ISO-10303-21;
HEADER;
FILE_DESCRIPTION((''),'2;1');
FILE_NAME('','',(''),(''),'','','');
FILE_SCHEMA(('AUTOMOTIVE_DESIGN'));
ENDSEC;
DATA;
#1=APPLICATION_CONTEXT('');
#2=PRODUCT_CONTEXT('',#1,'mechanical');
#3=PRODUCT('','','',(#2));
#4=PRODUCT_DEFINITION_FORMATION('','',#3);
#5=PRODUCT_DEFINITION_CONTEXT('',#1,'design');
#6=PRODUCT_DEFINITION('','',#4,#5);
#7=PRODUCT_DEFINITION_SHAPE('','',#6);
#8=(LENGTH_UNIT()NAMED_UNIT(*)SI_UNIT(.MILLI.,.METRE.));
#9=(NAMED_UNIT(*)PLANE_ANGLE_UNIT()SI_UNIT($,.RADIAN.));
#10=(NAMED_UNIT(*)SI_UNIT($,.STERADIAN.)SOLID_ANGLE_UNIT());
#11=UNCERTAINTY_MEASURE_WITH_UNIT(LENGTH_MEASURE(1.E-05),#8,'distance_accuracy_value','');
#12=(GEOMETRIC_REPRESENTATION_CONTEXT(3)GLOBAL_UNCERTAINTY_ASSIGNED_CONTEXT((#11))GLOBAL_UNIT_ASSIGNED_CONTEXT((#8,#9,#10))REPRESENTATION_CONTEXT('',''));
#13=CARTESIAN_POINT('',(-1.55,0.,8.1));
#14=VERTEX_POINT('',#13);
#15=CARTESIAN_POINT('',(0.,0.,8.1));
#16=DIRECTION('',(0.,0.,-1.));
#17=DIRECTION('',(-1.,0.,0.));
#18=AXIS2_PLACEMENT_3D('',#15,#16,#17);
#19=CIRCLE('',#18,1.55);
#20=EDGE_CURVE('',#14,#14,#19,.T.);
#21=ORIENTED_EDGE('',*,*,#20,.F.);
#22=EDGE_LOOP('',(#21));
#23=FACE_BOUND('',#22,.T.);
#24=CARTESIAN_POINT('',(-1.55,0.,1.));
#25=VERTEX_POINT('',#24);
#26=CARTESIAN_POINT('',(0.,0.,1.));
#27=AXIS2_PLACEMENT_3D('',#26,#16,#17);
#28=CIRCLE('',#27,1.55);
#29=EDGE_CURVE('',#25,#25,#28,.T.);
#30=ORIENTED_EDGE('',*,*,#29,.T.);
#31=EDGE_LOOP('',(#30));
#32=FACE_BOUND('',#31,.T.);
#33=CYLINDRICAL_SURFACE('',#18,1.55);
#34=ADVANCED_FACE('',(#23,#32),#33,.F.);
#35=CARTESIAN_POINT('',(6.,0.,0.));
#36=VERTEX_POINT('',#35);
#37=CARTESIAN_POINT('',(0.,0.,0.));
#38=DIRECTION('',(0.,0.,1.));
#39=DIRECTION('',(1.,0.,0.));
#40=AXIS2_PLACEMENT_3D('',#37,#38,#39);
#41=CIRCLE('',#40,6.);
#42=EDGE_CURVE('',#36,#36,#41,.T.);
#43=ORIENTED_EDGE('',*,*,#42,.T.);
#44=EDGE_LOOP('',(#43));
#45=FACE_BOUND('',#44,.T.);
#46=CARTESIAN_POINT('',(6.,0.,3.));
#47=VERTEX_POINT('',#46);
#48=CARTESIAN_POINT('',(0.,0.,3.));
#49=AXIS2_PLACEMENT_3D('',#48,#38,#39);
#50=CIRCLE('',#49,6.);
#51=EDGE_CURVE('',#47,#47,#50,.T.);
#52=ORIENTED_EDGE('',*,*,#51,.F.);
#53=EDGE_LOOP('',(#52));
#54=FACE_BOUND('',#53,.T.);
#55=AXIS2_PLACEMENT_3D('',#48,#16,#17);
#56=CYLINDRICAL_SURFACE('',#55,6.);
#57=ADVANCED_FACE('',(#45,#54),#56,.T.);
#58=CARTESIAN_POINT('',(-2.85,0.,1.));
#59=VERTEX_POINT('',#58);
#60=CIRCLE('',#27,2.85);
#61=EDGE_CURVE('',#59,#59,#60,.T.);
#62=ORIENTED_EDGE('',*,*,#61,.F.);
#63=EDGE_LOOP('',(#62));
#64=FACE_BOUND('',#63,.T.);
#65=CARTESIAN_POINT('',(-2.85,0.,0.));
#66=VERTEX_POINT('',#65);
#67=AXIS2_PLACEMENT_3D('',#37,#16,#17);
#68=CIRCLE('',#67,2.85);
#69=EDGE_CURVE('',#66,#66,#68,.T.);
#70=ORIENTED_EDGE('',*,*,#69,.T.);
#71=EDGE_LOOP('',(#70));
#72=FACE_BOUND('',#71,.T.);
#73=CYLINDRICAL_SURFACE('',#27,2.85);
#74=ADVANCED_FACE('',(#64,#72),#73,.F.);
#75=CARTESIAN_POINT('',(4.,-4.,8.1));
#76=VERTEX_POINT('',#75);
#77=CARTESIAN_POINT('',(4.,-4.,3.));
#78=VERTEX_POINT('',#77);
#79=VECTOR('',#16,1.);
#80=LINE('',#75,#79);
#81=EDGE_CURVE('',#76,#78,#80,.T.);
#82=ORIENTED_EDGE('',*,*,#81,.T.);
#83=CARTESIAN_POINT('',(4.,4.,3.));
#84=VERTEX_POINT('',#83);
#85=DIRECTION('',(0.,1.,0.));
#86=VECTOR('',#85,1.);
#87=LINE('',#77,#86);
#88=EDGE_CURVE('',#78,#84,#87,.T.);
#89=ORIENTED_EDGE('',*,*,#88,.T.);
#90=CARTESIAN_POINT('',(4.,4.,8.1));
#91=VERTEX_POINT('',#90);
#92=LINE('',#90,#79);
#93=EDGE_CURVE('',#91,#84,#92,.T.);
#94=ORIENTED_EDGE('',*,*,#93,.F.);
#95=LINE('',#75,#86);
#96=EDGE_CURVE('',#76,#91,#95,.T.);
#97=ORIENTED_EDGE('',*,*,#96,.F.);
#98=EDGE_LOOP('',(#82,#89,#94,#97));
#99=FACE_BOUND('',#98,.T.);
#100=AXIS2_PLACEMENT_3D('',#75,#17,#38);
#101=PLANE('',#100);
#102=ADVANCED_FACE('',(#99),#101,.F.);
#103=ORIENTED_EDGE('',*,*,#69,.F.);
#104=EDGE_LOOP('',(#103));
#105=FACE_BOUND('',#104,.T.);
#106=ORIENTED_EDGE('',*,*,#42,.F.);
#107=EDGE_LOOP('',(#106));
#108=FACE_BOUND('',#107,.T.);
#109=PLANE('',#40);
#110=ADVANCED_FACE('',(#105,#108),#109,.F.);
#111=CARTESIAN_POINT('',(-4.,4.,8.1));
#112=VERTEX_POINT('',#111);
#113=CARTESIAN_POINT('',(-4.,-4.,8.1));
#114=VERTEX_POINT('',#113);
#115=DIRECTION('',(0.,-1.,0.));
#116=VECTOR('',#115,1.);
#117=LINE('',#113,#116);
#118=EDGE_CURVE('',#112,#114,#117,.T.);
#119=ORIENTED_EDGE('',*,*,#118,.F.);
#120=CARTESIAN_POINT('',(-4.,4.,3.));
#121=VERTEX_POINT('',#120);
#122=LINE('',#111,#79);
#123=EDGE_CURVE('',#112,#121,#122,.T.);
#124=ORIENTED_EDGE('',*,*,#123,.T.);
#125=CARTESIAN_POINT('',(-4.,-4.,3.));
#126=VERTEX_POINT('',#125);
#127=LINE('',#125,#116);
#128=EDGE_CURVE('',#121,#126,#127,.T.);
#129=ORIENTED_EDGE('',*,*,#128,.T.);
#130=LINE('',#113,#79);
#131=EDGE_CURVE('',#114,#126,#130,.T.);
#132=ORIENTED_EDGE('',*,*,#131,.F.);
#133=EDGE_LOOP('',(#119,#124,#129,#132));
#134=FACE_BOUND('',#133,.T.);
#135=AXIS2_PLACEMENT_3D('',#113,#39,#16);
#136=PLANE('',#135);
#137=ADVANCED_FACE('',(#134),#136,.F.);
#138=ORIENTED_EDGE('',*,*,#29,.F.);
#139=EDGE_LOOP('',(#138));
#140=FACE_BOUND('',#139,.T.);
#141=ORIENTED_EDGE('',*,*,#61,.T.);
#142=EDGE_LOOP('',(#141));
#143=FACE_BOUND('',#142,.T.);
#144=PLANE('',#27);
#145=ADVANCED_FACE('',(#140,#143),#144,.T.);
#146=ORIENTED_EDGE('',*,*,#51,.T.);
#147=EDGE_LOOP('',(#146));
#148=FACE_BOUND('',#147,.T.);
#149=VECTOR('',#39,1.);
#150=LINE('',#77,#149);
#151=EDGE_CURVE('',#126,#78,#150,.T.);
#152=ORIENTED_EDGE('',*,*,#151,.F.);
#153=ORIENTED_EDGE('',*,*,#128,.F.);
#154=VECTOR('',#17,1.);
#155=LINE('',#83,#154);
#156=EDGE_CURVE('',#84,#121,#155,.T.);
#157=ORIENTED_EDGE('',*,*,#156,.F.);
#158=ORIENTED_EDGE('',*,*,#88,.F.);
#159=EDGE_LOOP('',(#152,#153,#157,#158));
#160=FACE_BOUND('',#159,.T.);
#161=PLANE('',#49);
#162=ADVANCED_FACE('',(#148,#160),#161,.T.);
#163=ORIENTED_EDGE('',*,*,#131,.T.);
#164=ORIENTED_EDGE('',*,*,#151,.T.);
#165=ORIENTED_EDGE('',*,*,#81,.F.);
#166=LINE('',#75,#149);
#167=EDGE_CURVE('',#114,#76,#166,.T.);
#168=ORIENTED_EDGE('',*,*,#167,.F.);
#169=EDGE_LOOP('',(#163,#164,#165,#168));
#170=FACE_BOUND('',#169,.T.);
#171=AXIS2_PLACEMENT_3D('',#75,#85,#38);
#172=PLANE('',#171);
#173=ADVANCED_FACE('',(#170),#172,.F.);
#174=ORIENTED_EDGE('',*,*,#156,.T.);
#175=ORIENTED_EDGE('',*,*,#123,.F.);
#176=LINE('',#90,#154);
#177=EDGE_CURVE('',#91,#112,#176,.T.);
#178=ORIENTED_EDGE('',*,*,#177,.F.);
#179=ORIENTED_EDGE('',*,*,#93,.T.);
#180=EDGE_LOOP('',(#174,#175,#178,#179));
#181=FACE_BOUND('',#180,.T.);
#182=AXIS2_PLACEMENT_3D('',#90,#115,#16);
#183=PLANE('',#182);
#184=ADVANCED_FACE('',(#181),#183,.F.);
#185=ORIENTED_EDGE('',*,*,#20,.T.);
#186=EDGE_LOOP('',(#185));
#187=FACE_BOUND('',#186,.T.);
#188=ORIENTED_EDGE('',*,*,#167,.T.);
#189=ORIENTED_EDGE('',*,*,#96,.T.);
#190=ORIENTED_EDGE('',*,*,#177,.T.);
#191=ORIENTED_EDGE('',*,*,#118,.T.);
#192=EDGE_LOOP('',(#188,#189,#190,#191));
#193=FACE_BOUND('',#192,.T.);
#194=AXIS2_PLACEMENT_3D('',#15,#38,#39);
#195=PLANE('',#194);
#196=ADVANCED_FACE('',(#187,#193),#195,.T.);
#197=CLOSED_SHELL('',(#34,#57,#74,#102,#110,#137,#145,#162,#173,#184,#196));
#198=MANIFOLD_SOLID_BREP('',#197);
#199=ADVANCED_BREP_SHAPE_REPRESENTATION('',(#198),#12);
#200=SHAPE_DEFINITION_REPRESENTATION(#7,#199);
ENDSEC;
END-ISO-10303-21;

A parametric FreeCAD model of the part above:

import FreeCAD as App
import Part
import Sketcher

V = App.Vector

doc = App.newDocument("Part")
body = doc.addObject("PartDesign::Body", "Body")

# Sketch on XY plane
sketch1 = body.newObject("Sketcher::SketchObject", "Sketch")
sketch1.AttachmentSupport = (doc.getObject("XY_Plane"), [""])
sketch1.MapMode = "FlatFace"
sketch1.addGeometry(Part.Circle(V(0, 0, 0), V(0, 0, 1), 6), False)
sketch1.addConstraint(Sketcher.Constraint("Coincident", 0, 3, -1, 1))
sketch1.addConstraint(Sketcher.Constraint("Diameter", 0, 12.0))
pad1 = body.newObject("PartDesign::Pad", "Pad")
pad1.Profile = sketch1
pad1.Length = 3

# Sketch on XY plane
sketch2 = body.newObject("Sketcher::SketchObject", "Sketch001")
sketch2.AttachmentSupport = (doc.getObject("XY_Plane"), [""])
sketch2.MapMode = "FlatFace"
sketch2.AttachmentOffset = App.Placement(V(0, 0, 3), App.Rotation())
sketch2.addGeometry(Part.LineSegment(V(-4, 4, 0), V(-4, -4, 0)), False)
sketch2.addGeometry(Part.LineSegment(V(-4, -4, 0), V(4, -4, 0)), False)
sketch2.addGeometry(Part.LineSegment(V(4, -4, 0), V(4, 4, 0)), False)
sketch2.addGeometry(Part.LineSegment(V(4, 4, 0), V(-4, 4, 0)), False)
sketch2.addConstraint(Sketcher.Constraint("Coincident", 0, 2, 1, 1))
sketch2.addConstraint(Sketcher.Constraint("Coincident", 1, 2, 2, 1))
sketch2.addConstraint(Sketcher.Constraint("Coincident", 2, 2, 3, 1))
sketch2.addConstraint(Sketcher.Constraint("Coincident", 3, 2, 0, 1))
sketch2.addConstraint(Sketcher.Constraint("Vertical", 0))
sketch2.addConstraint(Sketcher.Constraint("Horizontal", 1))
sketch2.addConstraint(Sketcher.Constraint("Vertical", 2))
sketch2.addConstraint(Sketcher.Constraint("Horizontal", 3))
sketch2.addConstraint(Sketcher.Constraint("Symmetric", 0, 2, 2, 2, -1, 1))
sketch2.addConstraint(Sketcher.Constraint("Equal", 3, 0))
sketch2.addConstraint(Sketcher.Constraint("DistanceX", 1, 1, 1, 2, 8.0))
pad2 = body.newObject("PartDesign::Pad", "Pad001")
pad2.Profile = sketch2
pad2.Length = 5.1

# Sketch on XY plane
sketch3 = body.newObject("Sketcher::SketchObject", "Sketch002")
sketch3.AttachmentSupport = (doc.getObject("XY_Plane"), [""])
sketch3.MapMode = "FlatFace"
sketch3.addGeometry(Part.Circle(V(0, 0, 0), V(0, 0, 1), 2.85), False)
sketch3.addConstraint(Sketcher.Constraint("Coincident", 0, 3, -1, 1))
sketch3.addConstraint(Sketcher.Constraint("Diameter", 0, 5.7))
pocket1 = body.newObject("PartDesign::Pocket", "Pocket")
pocket1.Profile = sketch3
pocket1.Length = 1
pocket1.Reversed = True

# Sketch on XY plane
sketch4 = body.newObject("Sketcher::SketchObject", "Sketch003")
sketch4.AttachmentSupport = (doc.getObject("XY_Plane"), [""])
sketch4.MapMode = "FlatFace"
sketch4.AttachmentOffset = App.Placement(V(0, 0, 1), App.Rotation())
sketch4.addGeometry(Part.Circle(V(0, 0, 0), V(0, 0, 1), 1.55), False)
sketch4.addConstraint(Sketcher.Constraint("Coincident", 0, 3, -1, 1))
sketch4.addConstraint(Sketcher.Constraint("Diameter", 0, 3.1))
pocket2 = body.newObject("PartDesign::Pocket", "Pocket001")
pocket2.Profile = sketch4
pocket2.Type = "ThroughAll"
pocket2.Reversed = True

doc.recompute()
